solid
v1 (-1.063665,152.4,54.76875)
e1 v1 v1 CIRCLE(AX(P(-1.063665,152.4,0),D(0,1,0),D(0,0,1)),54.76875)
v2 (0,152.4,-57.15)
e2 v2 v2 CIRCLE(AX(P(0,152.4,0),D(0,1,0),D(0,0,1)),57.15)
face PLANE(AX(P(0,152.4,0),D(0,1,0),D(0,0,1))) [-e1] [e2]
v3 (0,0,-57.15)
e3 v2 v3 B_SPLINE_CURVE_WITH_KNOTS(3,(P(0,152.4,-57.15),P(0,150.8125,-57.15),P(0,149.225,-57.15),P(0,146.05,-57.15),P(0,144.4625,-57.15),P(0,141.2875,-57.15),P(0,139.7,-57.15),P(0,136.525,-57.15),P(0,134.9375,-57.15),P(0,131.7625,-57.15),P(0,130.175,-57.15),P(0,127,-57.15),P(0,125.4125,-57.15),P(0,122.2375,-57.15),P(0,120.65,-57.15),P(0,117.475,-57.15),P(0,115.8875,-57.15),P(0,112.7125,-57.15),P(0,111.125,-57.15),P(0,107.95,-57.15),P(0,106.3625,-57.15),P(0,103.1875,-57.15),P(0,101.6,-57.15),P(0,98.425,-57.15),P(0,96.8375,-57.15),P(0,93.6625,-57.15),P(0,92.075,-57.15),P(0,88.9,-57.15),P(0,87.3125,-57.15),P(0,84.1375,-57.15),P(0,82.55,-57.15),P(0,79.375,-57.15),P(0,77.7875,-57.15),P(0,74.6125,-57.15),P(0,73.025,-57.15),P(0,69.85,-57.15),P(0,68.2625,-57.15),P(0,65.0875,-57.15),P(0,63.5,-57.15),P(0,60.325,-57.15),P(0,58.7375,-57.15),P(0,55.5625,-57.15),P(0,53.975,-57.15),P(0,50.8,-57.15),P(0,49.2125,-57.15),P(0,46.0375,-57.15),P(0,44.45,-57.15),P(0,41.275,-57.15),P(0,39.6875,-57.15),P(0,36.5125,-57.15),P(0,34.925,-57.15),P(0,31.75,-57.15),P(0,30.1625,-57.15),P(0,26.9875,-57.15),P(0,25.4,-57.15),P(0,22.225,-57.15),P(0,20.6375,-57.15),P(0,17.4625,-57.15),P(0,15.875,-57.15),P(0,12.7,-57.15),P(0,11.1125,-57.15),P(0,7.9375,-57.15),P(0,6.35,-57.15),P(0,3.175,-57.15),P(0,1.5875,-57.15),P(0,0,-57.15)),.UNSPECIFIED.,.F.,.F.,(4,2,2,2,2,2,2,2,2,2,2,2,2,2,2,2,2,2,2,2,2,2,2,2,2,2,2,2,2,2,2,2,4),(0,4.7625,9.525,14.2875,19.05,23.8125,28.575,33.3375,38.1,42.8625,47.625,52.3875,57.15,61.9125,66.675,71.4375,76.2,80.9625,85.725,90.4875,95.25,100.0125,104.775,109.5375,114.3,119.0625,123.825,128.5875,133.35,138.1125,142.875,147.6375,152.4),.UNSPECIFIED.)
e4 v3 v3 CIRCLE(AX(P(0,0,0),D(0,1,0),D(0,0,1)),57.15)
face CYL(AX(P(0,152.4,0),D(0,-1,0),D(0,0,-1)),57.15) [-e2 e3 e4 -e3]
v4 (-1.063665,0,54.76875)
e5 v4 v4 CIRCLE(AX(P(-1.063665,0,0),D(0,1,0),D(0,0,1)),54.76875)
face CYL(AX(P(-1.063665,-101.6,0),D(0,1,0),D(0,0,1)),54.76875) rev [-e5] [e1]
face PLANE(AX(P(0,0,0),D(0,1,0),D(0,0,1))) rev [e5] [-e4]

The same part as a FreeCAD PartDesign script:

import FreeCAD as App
import Part
import Sketcher
from FreeCAD import Vector
Q = App.Units.Quantity

doc = App.newDocument("Part")
body = doc.addObject("PartDesign::Body", "Body")

# Sketch on XZ plane
sketch1 = body.newObject("Sketcher::SketchObject", "Sketch")
sketch1.AttachmentSupport = (doc.getObject("XZ_Plane"), [""])
sketch1.MapMode = "FlatFace"
sketch1.addGeometry(Part.Circle(Vector(0, 0, 0), Vector(0, 0, 1), 57.15), False)
sketch1.addConstraint([
    Sketcher.Constraint("Coincident", 0, 3, -1, 1),
    Sketcher.Constraint("Diameter", 0, Q("4.5 in")),
])
pad1 = body.newObject("PartDesign::Pad", "Pad")
pad1.Profile = sketch1
pad1.Length = Q("6 in")
pad1.Reversed = True

# Sketch on XZ plane
sketch2 = body.newObject("Sketcher::SketchObject", "Sketch001")
sketch2.AttachmentSupport = (doc.getObject("XZ_Plane"), [""])
sketch2.MapMode = "FlatFace"
sketch2.AttachmentOffset = App.Placement(Vector(0, 0, -6 * 25.4), App.Rotation())
sketch2.addGeometry(Part.Circle(Vector(-1.063665, 0, 0), Vector(0, 0, 1), 54.76875), False)
sketch2.addConstraint([
    Sketcher.Constraint("PointOnObject", 0, 3, -1),
    Sketcher.Constraint("Diameter", 0, Q("4.3125 in")),
    Sketcher.Constraint("DistanceX", 0, 3, -1, 1, Q("1.063665 mm")),
])
pocket1 = body.newObject("PartDesign::Pocket", "Pocket")
pocket1.Profile = sketch2
pocket1.Length = Q("10 in")
pocket1.Reversed = True

doc.recompute()
